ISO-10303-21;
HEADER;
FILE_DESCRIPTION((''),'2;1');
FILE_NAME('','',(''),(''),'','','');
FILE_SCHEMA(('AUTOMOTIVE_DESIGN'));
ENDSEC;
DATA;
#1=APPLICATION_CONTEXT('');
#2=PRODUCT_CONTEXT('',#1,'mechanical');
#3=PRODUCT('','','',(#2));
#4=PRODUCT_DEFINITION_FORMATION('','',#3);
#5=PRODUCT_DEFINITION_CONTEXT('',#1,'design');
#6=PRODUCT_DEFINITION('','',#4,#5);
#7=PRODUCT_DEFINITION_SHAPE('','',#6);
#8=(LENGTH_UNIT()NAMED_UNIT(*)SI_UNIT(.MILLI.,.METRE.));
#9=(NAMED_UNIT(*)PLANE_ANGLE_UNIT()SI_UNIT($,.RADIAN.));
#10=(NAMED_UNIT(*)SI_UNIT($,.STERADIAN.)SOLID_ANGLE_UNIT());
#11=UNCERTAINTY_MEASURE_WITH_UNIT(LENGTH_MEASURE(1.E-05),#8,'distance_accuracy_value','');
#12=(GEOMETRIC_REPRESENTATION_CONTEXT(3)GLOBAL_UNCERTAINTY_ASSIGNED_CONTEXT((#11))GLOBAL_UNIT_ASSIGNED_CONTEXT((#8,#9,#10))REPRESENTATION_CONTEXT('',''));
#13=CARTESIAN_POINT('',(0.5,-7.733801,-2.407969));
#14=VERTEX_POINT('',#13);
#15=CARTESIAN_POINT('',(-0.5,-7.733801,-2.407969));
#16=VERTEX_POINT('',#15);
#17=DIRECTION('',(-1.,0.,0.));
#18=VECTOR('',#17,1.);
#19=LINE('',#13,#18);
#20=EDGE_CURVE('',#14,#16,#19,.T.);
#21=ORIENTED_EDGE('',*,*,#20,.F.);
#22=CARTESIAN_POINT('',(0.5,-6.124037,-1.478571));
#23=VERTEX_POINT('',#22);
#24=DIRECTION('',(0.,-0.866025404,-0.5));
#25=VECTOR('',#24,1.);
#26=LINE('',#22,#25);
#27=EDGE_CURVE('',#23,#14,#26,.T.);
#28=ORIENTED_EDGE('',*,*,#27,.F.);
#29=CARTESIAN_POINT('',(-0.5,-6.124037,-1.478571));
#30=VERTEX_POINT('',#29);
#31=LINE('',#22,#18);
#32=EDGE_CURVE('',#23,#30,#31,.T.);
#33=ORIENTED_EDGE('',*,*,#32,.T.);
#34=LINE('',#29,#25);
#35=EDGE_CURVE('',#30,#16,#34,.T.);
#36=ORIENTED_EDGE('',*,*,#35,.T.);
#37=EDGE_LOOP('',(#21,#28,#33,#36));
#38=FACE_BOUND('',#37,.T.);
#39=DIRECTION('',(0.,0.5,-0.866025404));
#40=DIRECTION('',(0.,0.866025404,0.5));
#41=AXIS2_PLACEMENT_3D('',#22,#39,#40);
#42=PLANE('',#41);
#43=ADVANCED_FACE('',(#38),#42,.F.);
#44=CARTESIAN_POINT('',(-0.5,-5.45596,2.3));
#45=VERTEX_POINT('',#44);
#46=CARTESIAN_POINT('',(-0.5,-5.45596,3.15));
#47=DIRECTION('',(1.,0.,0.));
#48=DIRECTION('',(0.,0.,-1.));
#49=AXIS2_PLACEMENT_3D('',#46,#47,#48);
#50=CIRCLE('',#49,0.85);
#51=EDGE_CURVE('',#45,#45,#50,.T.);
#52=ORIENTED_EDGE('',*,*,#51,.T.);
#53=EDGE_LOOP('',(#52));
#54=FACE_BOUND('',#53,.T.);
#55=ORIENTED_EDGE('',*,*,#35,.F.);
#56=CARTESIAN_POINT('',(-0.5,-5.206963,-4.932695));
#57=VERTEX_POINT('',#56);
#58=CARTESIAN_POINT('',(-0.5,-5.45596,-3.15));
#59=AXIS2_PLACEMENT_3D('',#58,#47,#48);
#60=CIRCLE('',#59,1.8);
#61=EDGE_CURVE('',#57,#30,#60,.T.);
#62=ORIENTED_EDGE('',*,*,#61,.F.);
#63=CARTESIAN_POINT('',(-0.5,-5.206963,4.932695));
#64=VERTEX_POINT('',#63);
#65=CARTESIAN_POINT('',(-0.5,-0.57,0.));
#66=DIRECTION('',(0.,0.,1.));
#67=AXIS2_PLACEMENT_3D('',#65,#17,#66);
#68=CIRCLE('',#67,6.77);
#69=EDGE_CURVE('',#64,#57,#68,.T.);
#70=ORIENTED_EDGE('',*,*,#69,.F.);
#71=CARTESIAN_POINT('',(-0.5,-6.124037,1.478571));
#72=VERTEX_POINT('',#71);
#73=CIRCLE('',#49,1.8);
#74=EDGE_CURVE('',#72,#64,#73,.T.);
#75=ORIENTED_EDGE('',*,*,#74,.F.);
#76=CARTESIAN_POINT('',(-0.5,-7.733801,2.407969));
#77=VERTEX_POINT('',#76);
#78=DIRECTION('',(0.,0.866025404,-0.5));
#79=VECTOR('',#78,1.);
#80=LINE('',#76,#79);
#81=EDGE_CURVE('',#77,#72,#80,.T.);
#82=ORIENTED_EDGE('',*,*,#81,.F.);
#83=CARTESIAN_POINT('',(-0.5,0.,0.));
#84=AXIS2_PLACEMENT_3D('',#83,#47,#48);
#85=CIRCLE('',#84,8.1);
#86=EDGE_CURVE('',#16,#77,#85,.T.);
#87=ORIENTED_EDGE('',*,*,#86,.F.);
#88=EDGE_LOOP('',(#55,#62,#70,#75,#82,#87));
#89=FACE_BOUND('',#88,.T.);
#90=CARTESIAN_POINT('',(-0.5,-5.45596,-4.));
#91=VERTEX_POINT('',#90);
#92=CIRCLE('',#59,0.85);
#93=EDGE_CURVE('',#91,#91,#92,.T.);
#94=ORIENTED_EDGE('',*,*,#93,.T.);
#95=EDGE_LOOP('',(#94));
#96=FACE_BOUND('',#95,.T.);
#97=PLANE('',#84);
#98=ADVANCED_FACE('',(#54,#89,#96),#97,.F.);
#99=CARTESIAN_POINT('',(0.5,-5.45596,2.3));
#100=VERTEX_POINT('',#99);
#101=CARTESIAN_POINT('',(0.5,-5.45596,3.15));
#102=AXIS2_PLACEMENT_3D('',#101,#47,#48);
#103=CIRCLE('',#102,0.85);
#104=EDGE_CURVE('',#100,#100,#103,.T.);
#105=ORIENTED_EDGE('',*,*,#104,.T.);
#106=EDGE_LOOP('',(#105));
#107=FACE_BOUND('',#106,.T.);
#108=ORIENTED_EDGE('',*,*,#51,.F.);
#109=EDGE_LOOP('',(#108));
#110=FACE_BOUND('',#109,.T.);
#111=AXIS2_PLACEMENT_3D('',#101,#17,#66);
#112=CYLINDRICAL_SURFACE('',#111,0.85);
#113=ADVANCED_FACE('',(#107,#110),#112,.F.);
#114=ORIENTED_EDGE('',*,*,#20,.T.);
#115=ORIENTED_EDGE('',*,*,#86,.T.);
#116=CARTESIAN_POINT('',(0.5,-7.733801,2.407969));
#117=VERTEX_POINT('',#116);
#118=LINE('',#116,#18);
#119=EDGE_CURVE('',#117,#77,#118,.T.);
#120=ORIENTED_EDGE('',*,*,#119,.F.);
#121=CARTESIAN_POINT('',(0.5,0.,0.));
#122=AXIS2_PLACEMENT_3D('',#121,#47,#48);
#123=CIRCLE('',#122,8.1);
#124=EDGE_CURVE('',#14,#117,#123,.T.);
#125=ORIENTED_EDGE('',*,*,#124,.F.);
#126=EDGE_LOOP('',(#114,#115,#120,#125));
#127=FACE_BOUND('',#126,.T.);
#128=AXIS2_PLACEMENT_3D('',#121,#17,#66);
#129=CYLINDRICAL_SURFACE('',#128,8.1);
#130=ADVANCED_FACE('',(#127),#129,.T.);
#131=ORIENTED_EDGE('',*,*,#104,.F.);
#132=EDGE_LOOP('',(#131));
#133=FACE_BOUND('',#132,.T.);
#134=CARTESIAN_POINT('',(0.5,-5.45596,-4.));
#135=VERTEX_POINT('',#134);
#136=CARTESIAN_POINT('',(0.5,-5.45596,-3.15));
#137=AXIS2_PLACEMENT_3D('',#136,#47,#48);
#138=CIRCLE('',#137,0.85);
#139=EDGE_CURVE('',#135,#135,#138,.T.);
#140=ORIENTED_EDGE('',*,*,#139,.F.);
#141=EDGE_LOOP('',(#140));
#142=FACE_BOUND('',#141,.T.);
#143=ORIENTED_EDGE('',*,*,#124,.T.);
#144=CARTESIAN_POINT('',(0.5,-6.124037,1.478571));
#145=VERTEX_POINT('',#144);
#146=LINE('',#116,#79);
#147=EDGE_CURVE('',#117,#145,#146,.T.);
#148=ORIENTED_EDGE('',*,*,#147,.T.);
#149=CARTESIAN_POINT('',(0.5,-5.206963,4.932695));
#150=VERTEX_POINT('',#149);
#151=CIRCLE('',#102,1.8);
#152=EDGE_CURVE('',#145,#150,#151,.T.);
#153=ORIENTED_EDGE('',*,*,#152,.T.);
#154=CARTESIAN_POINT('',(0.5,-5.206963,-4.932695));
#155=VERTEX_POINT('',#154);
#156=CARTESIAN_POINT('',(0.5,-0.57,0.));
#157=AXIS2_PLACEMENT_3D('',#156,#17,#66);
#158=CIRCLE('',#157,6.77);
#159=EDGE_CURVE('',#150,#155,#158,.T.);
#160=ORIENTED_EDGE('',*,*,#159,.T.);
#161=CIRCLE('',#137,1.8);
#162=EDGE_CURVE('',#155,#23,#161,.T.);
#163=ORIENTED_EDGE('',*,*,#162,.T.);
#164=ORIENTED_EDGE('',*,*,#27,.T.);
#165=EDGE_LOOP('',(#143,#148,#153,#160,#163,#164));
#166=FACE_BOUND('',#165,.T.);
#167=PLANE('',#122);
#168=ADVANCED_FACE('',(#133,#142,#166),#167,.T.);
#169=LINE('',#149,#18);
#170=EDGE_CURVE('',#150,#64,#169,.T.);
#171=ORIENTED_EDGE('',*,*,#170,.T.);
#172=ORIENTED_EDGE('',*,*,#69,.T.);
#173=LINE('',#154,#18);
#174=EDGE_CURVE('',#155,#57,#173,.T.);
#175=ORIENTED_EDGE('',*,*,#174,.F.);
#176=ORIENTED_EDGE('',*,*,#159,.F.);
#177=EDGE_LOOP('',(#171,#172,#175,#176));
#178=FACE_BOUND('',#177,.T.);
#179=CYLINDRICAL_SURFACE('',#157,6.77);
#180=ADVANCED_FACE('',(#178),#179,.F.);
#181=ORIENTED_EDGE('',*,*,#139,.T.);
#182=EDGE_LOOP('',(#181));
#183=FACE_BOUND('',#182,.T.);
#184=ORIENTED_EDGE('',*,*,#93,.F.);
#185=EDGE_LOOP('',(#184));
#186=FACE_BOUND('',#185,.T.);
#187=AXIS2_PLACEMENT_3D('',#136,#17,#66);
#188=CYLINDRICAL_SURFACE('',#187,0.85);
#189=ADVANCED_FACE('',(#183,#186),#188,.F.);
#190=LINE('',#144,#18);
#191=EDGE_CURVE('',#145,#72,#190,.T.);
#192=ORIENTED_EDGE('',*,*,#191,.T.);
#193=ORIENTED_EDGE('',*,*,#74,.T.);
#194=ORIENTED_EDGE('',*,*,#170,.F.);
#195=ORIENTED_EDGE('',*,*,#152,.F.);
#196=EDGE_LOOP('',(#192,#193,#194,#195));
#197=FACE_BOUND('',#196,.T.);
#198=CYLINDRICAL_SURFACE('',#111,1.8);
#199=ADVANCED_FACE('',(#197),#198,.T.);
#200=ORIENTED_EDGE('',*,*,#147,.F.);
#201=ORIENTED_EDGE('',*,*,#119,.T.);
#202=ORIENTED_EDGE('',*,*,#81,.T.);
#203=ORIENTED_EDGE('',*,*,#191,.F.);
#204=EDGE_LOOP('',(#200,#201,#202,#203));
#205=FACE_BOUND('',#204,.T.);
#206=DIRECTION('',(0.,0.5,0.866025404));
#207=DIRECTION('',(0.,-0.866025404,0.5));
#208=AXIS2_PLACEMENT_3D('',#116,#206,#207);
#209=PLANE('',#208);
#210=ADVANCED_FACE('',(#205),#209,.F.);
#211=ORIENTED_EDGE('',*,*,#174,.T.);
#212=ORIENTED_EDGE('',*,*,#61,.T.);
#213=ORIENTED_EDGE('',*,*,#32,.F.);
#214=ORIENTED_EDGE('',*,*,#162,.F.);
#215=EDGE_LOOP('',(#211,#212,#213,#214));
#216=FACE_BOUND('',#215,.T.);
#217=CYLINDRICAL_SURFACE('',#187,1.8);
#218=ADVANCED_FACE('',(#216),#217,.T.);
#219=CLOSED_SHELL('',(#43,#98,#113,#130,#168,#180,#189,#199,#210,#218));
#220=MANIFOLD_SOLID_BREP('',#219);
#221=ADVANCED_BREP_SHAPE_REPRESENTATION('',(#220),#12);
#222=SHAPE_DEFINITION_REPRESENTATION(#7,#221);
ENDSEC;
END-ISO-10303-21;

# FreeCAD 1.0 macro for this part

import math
import FreeCAD as App
import Part
import Sketcher

V = App.Vector
Q = App.Units.Quantity

doc = App.newDocument("Part")
params = doc.addObject("Spreadsheet::Sheet", "Params")
for row, (alias, value) in enumerate([
    ("sketch1_diameter", "1.7 mm"),
    ("sketch1_radius", "1.8 mm"),
    ("sketch1_radius2", "8.1 mm"),
    ("sketch1_radius3", "6.77 mm"),
    ("pad1_length", "0.5 mm"),
    ("pad1_length2", "0.5 mm"),
], start=1):
    params.set(f"A{row}", alias)
    params.set(f"B{row}", "=" + value)
    params.setAlias(f"B{row}", alias)

body = doc.addObject("PartDesign::Body", "Body")

# Sketch on YZ plane
sketch1 = body.newObject("Sketcher::SketchObject", "Sketch")
sketch1.AttachmentSupport = (doc.getObject("YZ_Plane"), [""])
sketch1.MapMode = "FlatFace"
sketch1.addGeometry([
    Part.LineSegment(V(-7.7, 2.4, 0), V(-6.1, 1.5, 0)),  # 0
    Part.ArcOfCircle(Part.Circle(V(-5.5, 3.1, 0), V(0, 0, 1), 1.8), math.radians(-112), math.radians(82)),  # 1
    Part.ArcOfCircle(Part.Circle(V(-0.6, 0, 0), V(0, 0, 1), 6.8), math.radians(-133), math.radians(133)),  # 2
    Part.ArcOfCircle(Part.Circle(V(-5.5, -3.1, 0), V(0, 0, 1), 1.8), math.radians(-82), math.radians(112)),  # 3
    Part.LineSegment(V(-6.1, -1.5, 0), V(-7.7, -2.4, 0)),  # 4
    Part.ArcOfCircle(Part.Circle(V(0, 0, 0), V(0, 0, 1), 8.1), math.radians(-163), math.radians(163)),  # 5
    Part.Circle(V(-5.5, 3.1, 0), V(0, 0, 1), 0.8),  # 6
    Part.Circle(V(-5.5, -3.1, 0), V(0, 0, 1), 0.8),  # 7
], False)
sketch1.addConstraint([
    Sketcher.Constraint("Coincident", 0, 2, 1, 1),
    Sketcher.Constraint("Coincident", 1, 2, 2, 2),
    Sketcher.Constraint("Coincident", 2, 1, 3, 1),
    Sketcher.Constraint("Coincident", 3, 2, 4, 1),
    Sketcher.Constraint("Coincident", 4, 2, 5, 1),
    Sketcher.Constraint("Coincident", 5, 2, 0, 1),
    Sketcher.Constraint("Coincident", 5, 3, -1, 1),
    Sketcher.Constraint("Coincident", 6, 3, 1, 3),
    Sketcher.Constraint("Coincident", 7, 3, 3, 3),
    Sketcher.Constraint("Equal", 1, 3),
    Sketcher.Constraint("Equal", 6, 7),
    Sketcher.Constraint("Symmetric", 1, 3, 3, 3, -1),
    Sketcher.Constraint("PointOnObject", 2, 3, -1),
    Sketcher.Constraint("Vertical", 0, 2, 3, 2),
    Sketcher.Constraint("Vertical", 4, 2, 5, 2),
    Sketcher.Constraint("Diameter", 6, Q("1.7 mm")),
    Sketcher.Constraint("Radius", 1, Q("1.8 mm")),
    Sketcher.Constraint("Radius", 5, Q("8.1 mm")),
    Sketcher.Constraint("Angle", 0, Q("-30 deg")),
    Sketcher.Constraint("Radius", 2, Q("6.77 mm")),
    Sketcher.Constraint("DistanceY", 3, 3, 1, 3, Q("6.3 mm")),
    Sketcher.Constraint("DistanceX", 2, 3, -1, 1, Q("0.57 mm")),
    Sketcher.Constraint("DistanceX", 4, 2, -1, 1, Q("7.733801 mm")),
    Sketcher.Constraint("DistanceY", 4, 2, 3, 2, Q("0.929398 mm")),
])
sketch1.setExpression("Constraints[15]", "Params.sketch1_diameter")
sketch1.setExpression("Constraints[16]", "Params.sketch1_radius")
sketch1.setExpression("Constraints[17]", "Params.sketch1_radius2")
sketch1.setExpression("Constraints[19]", "Params.sketch1_radius3")
pad1 = body.newObject("PartDesign::Pad", "Pad")
pad1.Profile = sketch1
pad1.Type = "TwoLengths"
pad1.setExpression("Length", "Params.pad1_length")
pad1.setExpression("Length2", "Params.pad1_length2")

doc.recompute()
